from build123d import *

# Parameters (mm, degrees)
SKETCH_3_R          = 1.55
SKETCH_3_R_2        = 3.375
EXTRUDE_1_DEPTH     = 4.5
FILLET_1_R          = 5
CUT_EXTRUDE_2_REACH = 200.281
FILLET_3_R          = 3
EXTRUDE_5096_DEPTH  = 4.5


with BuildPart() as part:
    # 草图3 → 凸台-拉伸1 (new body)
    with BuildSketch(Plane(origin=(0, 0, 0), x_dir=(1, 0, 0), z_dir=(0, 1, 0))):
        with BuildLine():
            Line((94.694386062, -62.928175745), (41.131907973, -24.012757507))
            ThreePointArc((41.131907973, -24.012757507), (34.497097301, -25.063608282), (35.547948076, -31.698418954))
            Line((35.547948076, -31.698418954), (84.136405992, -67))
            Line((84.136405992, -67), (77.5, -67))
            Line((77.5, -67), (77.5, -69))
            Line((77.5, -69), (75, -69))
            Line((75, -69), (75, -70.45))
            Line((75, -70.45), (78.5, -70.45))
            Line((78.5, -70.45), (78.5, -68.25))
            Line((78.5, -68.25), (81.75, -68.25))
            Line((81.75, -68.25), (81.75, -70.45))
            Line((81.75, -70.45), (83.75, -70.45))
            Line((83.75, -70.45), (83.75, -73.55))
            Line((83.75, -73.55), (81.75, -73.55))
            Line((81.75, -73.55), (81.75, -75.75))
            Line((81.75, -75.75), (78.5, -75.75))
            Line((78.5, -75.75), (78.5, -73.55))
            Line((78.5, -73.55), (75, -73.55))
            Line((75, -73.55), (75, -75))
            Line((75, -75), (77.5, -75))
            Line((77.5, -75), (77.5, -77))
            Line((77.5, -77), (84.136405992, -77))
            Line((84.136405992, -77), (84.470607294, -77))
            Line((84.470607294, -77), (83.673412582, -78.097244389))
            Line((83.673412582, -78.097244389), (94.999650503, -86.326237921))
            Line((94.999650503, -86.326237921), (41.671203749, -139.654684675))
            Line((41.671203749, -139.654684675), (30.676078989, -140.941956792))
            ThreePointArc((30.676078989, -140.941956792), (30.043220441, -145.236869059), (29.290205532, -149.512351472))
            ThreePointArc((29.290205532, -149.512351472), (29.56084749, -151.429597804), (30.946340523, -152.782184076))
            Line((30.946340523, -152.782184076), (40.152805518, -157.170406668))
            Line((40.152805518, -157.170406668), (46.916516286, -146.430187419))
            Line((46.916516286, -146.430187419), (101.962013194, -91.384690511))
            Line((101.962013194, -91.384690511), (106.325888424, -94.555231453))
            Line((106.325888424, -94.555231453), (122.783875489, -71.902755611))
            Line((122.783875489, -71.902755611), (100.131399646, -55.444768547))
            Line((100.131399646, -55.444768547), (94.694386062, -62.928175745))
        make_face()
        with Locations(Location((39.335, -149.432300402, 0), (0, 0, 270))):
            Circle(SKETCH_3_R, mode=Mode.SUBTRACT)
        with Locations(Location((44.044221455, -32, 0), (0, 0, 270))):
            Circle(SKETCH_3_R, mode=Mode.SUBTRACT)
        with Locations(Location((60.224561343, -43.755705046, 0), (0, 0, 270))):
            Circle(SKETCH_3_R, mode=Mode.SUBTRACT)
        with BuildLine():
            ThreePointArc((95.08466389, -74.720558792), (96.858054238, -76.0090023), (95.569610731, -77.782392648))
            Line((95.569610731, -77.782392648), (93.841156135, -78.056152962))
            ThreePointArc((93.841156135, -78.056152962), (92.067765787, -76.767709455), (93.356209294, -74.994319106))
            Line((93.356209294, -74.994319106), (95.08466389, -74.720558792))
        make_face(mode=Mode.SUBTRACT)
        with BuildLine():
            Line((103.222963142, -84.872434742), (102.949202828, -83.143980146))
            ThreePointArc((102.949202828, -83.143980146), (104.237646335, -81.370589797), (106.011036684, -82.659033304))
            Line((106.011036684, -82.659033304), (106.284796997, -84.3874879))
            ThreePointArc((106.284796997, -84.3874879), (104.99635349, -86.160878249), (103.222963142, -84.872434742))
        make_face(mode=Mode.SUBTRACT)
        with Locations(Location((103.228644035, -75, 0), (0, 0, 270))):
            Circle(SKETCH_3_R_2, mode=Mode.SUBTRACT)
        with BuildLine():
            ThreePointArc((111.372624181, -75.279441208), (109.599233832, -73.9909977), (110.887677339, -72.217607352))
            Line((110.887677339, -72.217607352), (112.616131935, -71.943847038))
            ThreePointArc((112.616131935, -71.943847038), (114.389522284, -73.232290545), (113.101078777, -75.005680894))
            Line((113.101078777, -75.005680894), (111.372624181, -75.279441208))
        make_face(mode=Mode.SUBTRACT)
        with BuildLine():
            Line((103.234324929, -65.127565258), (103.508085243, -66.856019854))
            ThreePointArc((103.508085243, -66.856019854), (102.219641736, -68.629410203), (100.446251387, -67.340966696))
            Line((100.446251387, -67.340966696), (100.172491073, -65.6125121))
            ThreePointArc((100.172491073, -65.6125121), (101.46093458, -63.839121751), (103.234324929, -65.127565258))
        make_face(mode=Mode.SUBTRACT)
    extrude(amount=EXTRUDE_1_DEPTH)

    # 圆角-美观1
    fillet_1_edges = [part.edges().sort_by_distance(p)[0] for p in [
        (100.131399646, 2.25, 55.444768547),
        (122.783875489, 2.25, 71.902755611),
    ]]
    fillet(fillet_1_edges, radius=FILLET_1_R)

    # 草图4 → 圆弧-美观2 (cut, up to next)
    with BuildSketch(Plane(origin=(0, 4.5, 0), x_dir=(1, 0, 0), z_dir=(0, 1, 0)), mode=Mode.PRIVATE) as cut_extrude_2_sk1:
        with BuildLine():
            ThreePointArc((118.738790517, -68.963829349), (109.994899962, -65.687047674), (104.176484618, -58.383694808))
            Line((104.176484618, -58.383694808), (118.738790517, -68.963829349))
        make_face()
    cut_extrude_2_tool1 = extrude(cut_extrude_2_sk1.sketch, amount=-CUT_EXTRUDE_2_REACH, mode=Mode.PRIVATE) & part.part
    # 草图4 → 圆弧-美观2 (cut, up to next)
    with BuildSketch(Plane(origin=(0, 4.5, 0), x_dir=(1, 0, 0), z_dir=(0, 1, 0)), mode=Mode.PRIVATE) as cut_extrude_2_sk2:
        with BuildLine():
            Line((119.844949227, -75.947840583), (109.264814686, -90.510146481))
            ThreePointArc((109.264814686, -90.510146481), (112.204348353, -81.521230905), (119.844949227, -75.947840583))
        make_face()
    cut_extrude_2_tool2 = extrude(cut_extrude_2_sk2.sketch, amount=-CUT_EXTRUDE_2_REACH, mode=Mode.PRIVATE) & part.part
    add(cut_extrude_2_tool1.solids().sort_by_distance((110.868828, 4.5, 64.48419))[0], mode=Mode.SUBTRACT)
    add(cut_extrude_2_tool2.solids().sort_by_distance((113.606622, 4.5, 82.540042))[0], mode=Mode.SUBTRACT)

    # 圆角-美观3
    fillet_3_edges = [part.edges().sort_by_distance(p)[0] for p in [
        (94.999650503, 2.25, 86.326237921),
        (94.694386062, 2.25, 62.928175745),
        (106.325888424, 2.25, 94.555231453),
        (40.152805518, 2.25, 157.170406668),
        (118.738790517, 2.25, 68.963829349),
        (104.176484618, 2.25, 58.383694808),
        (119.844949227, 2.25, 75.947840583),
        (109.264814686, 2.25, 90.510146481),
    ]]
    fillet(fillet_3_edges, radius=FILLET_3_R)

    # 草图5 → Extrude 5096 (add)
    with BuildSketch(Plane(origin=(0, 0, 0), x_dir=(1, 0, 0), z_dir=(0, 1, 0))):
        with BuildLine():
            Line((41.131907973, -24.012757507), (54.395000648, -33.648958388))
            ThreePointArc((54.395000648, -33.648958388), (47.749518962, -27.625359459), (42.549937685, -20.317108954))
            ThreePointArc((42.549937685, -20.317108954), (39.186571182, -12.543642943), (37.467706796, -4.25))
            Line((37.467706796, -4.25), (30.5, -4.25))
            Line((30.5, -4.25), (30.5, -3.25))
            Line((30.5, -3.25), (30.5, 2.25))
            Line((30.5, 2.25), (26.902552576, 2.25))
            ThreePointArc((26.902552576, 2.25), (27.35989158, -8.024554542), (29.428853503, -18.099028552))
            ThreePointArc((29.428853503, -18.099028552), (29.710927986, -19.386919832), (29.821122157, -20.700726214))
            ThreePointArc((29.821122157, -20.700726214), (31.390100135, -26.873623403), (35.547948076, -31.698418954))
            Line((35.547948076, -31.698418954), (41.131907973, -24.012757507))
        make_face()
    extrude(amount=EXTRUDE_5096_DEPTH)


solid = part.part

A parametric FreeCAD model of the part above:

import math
import FreeCAD as App
import Part
import Sketcher
Q = App.Units.Quantity


def edges_at(feature, points):
    """Names of the edges that pass closest to the given points."""
    edges = feature.Shape.Edges
    near = lambda p: min(range(len(edges)), key=lambda i: edges[i].distToShape(Part.Vertex(*p))[0])
    return sorted({f"Edge{near(p) + 1}" for p in points})

doc = App.newDocument("Part")
body = doc.addObject("PartDesign::Body", "Body")

# Sketch on XZ plane
sketch1 = body.newObject("Sketcher::SketchObject", "Sketch")
sketch1.AttachmentSupport = (doc.getObject("XZ_Plane"), [""])
sketch1.MapMode = "FlatFace"
sketch1.addGeometry([
    Part.LineSegment(App.Vector(94.7, 62.9, 0), App.Vector(41.1, 24, 0)),  # 0
    Part.ArcOfCircle(Part.Circle(App.Vector(38.3, 27.9, 0), App.Vector(0, 0, 1), 4.8), math.radians(126), math.radians(306)),  # 1
    Part.LineSegment(App.Vector(35.5, 31.7, 0), App.Vector(84.1, 67, 0)),  # 2
    Part.LineSegment(App.Vector(84.1, 67, 0), App.Vector(77.5, 67, 0)),  # 3
    Part.LineSegment(App.Vector(77.5, 67, 0), App.Vector(77.5, 69, 0)),  # 4
    Part.LineSegment(App.Vector(77.5, 69, 0), App.Vector(75, 69, 0)),  # 5
    Part.LineSegment(App.Vector(75, 69, 0), App.Vector(75, 70.5, 0)),  # 6
    Part.LineSegment(App.Vector(75, 70.5, 0), App.Vector(78.5, 70.5, 0)),  # 7
    Part.LineSegment(App.Vector(78.5, 70.5, 0), App.Vector(78.5, 68.2, 0)),  # 8
    Part.LineSegment(App.Vector(78.5, 68.2, 0), App.Vector(81.8, 68.2, 0)),  # 9
    Part.LineSegment(App.Vector(81.8, 68.2, 0), App.Vector(81.8, 70.5, 0)),  # 10
    Part.LineSegment(App.Vector(81.8, 70.5, 0), App.Vector(83.8, 70.5, 0)),  # 11
    Part.LineSegment(App.Vector(83.8, 70.5, 0), App.Vector(83.8, 73.5, 0)),  # 12
    Part.LineSegment(App.Vector(83.8, 73.5, 0), App.Vector(81.8, 73.5, 0)),  # 13
    Part.LineSegment(App.Vector(81.8, 73.5, 0), App.Vector(81.8, 75.8, 0)),  # 14
    Part.LineSegment(App.Vector(81.8, 75.8, 0), App.Vector(78.5, 75.8, 0)),  # 15
    Part.LineSegment(App.Vector(78.5, 75.8, 0), App.Vector(78.5, 73.5, 0)),  # 16
    Part.LineSegment(App.Vector(78.5, 73.5, 0), App.Vector(75, 73.5, 0)),  # 17
    Part.LineSegment(App.Vector(75, 73.5, 0), App.Vector(75, 75, 0)),  # 18
    Part.LineSegment(App.Vector(75, 75, 0), App.Vector(77.5, 75, 0)),  # 19
    Part.LineSegment(App.Vector(77.5, 75, 0), App.Vector(77.5, 77, 0)),  # 20
    Part.LineSegment(App.Vector(77.5, 77, 0), App.Vector(84.5, 77, 0)),  # 21
    Part.LineSegment(App.Vector(84.5, 77, 0), App.Vector(83.7, 78.1, 0)),  # 22
    Part.LineSegment(App.Vector(83.7, 78.1, 0), App.Vector(95, 86.3, 0)),  # 23
    Part.LineSegment(App.Vector(95, 86.3, 0), App.Vector(41.7, 139.7, 0)),  # 24
    Part.LineSegment(App.Vector(41.7, 139.7, 0), App.Vector(30.7, 140.9, 0)),  # 25
    Part.ArcOfCircle(Part.Circle(App.Vector(-122.8, 120.5, 0), App.Vector(0, 0, 1), 154.8), math.radians(7.58), math.radians(10.79)),  # 26
    Part.ArcOfCircle(Part.Circle(App.Vector(32.2, 150.1, 0), App.Vector(0, 0, 1), 3), math.radians(115), math.radians(191)),  # 27
    Part.LineSegment(App.Vector(30.9, 152.8, 0), App.Vector(40.2, 157.2, 0)),  # 28
    Part.LineSegment(App.Vector(40.2, 157.2, 0), App.Vector(46.9, 146.4, 0)),  # 29
    Part.LineSegment(App.Vector(46.9, 146.4, 0), App.Vector(102, 91.4, 0)),  # 30
    Part.LineSegment(App.Vector(102, 91.4, 0), App.Vector(106.3, 94.6, 0)),  # 31
    Part.LineSegment(App.Vector(106.3, 94.6, 0), App.Vector(122.8, 71.9, 0)),  # 32
    Part.LineSegment(App.Vector(122.8, 71.9, 0), App.Vector(100.1, 55.4, 0)),  # 33
    Part.LineSegment(App.Vector(100.1, 55.4, 0), App.Vector(94.7, 62.9, 0)),  # 34
    Part.Circle(App.Vector(39.3, 149.4, 0), App.Vector(0, 0, 1), 1.6),  # 35
    Part.Circle(App.Vector(44, 32, 0), App.Vector(0, 0, 1), 1.6),  # 36
    Part.Circle(App.Vector(60.2, 43.8, 0), App.Vector(0, 0, 1), 1.6),  # 37
    Part.LineSegment(App.Vector(93.4, 75, 0), App.Vector(95.1, 74.7, 0)),  # 38
    Part.ArcOfCircle(Part.Circle(App.Vector(95.3, 76.3, 0), App.Vector(0, 0, 1), 1.6), math.radians(-99), math.radians(81)),  # 39
    Part.LineSegment(App.Vector(95.6, 77.8, 0), App.Vector(93.8, 78.1, 0)),  # 40
    Part.ArcOfCircle(Part.Circle(App.Vector(93.6, 76.5, 0), App.Vector(0, 0, 1), 1.6), math.radians(81), math.radians(261)),  # 41
    Part.ArcOfCircle(Part.Circle(App.Vector(104.8, 84.6, 0), App.Vector(0, 0, 1), 1.6), math.radians(-9), math.radians(171)),  # 42
    Part.LineSegment(App.Vector(103.2, 84.9, 0), App.Vector(102.9, 83.1, 0)),  # 43
    Part.ArcOfCircle(Part.Circle(App.Vector(104.5, 82.9, 0), App.Vector(0, 0, 1), 1.6), math.radians(171), math.radians(351)),  # 44
    Part.LineSegment(App.Vector(106, 82.7, 0), App.Vector(106.3, 84.4, 0)),  # 45
    Part.Circle(App.Vector(103.2, 75, 0), App.Vector(0, 0, 1), 3.4),  # 46
    Part.ArcOfCircle(Part.Circle(App.Vector(101.7, 65.4, 0), App.Vector(0, 0, 1), 1.6), math.radians(171), math.radians(351)),  # 47
    Part.LineSegment(App.Vector(103.2, 65.1, 0), App.Vector(103.5, 66.9, 0)),  # 48
    Part.ArcOfCircle(Part.Circle(App.Vector(102, 67.1, 0), App.Vector(0, 0, 1), 1.6), math.radians(-9), math.radians(171)),  # 49
    Part.LineSegment(App.Vector(100.4, 67.3, 0), App.Vector(100.2, 65.6, 0)),  # 50
    Part.LineSegment(App.Vector(113.1, 75, 0), App.Vector(111.4, 75.3, 0)),  # 51
    Part.ArcOfCircle(Part.Circle(App.Vector(111.1, 73.7, 0), App.Vector(0, 0, 1), 1.6), math.radians(81), math.radians(261)),  # 52
    Part.LineSegment(App.Vector(110.9, 72.2, 0), App.Vector(112.6, 71.9, 0)),  # 53
    Part.ArcOfCircle(Part.Circle(App.Vector(112.9, 73.5, 0), App.Vector(0, 0, 1), 1.6), math.radians(-99), math.radians(81)),  # 54
], False)
sketch1.addConstraint([
    Sketcher.Constraint("Tangent", 0, 2, 1, 2),
    Sketcher.Constraint("Tangent", 1, 1, 2, 1),
    Sketcher.Constraint("Coincident", 2, 2, 3, 1),
    Sketcher.Constraint("Coincident", 3, 2, 4, 1),
    Sketcher.Constraint("Coincident", 4, 2, 5, 1),
    Sketcher.Constraint("Coincident", 5, 2, 6, 1),
    Sketcher.Constraint("Coincident", 6, 2, 7, 1),
    Sketcher.Constraint("Coincident", 7, 2, 8, 1),
    Sketcher.Constraint("Coincident", 8, 2, 9, 1),
    Sketcher.Constraint("Coincident", 9, 2, 10, 1),
    Sketcher.Constraint("Coincident", 10, 2, 11, 1),
    Sketcher.Constraint("Coincident", 11, 2, 12, 1),
    Sketcher.Constraint("Coincident", 12, 2, 13, 1),
    Sketcher.Constraint("Coincident", 13, 2, 14, 1),
    Sketcher.Constraint("Coincident", 14, 2, 15, 1),
    Sketcher.Constraint("Coincident", 15, 2, 16, 1),
    Sketcher.Constraint("Coincident", 16, 2, 17, 1),
    Sketcher.Constraint("Coincident", 17, 2, 18, 1),
    Sketcher.Constraint("Coincident", 18, 2, 19, 1),
    Sketcher.Constraint("Coincident", 19, 2, 20, 1),
    Sketcher.Constraint("Coincident", 20, 2, 21, 1),
    Sketcher.Constraint("Coincident", 21, 2, 22, 1),
    Sketcher.Constraint("Coincident", 22, 2, 23, 1),
    Sketcher.Constraint("Coincident", 23, 2, 24, 1),
    Sketcher.Constraint("Coincident", 24, 2, 25, 1),
    Sketcher.Constraint("Coincident", 25, 2, 26, 1),
    Sketcher.Constraint("Tangent", 26, 2, 27, 2),
    Sketcher.Constraint("Tangent", 27, 1, 28, 1),
    Sketcher.Constraint("Coincident", 28, 2, 29, 1),
    Sketcher.Constraint("Coincident", 29, 2, 30, 1),
    Sketcher.Constraint("Coincident", 30, 2, 31, 1),
    Sketcher.Constraint("Coincident", 31, 2, 32, 1),
    Sketcher.Constraint("Coincident", 32, 2, 33, 1),
    Sketcher.Constraint("Coincident", 33, 2, 34, 1),
    Sketcher.Constraint("Coincident", 34, 2, 0, 1),
    Sketcher.Constraint("Tangent", 38, 2, 39, 1),
    Sketcher.Constraint("Tangent", 39, 2, 40, 1),
    Sketcher.Constraint("Tangent", 40, 2, 41, 1),
    Sketcher.Constraint("Tangent", 41, 2, 38, 1),
    Sketcher.Constraint("Tangent", 42, 2, 43, 1),
    Sketcher.Constraint("Tangent", 43, 2, 44, 1),
    Sketcher.Constraint("Tangent", 44, 2, 45, 1),
    Sketcher.Constraint("Tangent", 45, 2, 42, 1),
    Sketcher.Constraint("Tangent", 47, 2, 48, 1),
    Sketcher.Constraint("Tangent", 48, 2, 49, 1),
    Sketcher.Constraint("Tangent", 49, 2, 50, 1),
    Sketcher.Constraint("Tangent", 50, 2, 47, 1),
    Sketcher.Constraint("Tangent", 51, 2, 52, 1),
    Sketcher.Constraint("Tangent", 52, 2, 53, 1),
    Sketcher.Constraint("Tangent", 53, 2, 54, 1),
    Sketcher.Constraint("Tangent", 54, 2, 51, 1),
    Sketcher.Constraint("Horizontal", 3),
    Sketcher.Constraint("Vertical", 4),
    Sketcher.Constraint("Horizontal", 5),
    Sketcher.Constraint("Vertical", 6),
    Sketcher.Constraint("Horizontal", 7),
    Sketcher.Constraint("Vertical", 8),
    Sketcher.Constraint("Horizontal", 9),
    Sketcher.Constraint("Vertical", 10),
    Sketcher.Constraint("Horizontal", 11),
    Sketcher.Constraint("Vertical", 12),
    Sketcher.Constraint("Horizontal", 13),
    Sketcher.Constraint("Vertical", 14),
    Sketcher.Constraint("Horizontal", 15),
    Sketcher.Constraint("Vertical", 16),
    Sketcher.Constraint("Horizontal", 17),
    Sketcher.Constraint("Vertical", 18),
    Sketcher.Constraint("Horizontal", 19),
    Sketcher.Constraint("Vertical", 20),
    Sketcher.Constraint("Horizontal", 21),
    Sketcher.Constraint("Equal", 35, 36),
    Sketcher.Constraint("Equal", 36, 37),
    Sketcher.Constraint("Equal", 37, 39),
    Sketcher.Constraint("Equal", 39, 41),
    Sketcher.Constraint("Equal", 41, 42),
    Sketcher.Constraint("Equal", 42, 44),
    Sketcher.Constraint("Equal", 44, 47),
    Sketcher.Constraint("Equal", 47, 49),
    Sketcher.Constraint("Equal", 49, 52),
    Sketcher.Constraint("Equal", 52, 54),
    Sketcher.Constraint("Parallel", 0, 2),
    Sketcher.Constraint("Perpendicular", 2, 22),
    Sketcher.Constraint("Perpendicular", 22, 23),
    Sketcher.Constraint("Parallel", 24, 30),
    Sketcher.Constraint("Parallel", 23, 31),
    Sketcher.Constraint("Perpendicular", 31, 32),
    Sketcher.Constraint("Perpendicular", 32, 33),
    Sketcher.Constraint("Perpendicular", 33, 34),
    Sketcher.Constraint("Perpendicular", 40, 43),
    Sketcher.Constraint("Parallel", 45, 48),
    Sketcher.Constraint("Perpendicular", 50, 51),
    Sketcher.Constraint("Horizontal", 7, 2, 10, 2),
    Sketcher.Constraint("Horizontal", 13, 2, 16, 2),
    Sketcher.Constraint("Horizontal", 46, 3, 18, 2),
    Sketcher.Constraint("Vertical", 10, 2, 13, 2),
    Sketcher.Constraint("Vertical", 8, 2, 15, 2),
    Sketcher.Constraint("Vertical", 6, 2, 17, 2),
    Sketcher.Constraint("Vertical", 4, 2, 19, 2),
    Sketcher.Constraint("Equal", 13, 4),
    Sketcher.Constraint("Equal", 10, 14),
    Sketcher.Constraint("Equal", 6, 18),
    Sketcher.Constraint("Equal", 4, 20),
    Sketcher.Constraint("Equal", 32, 33),
    Sketcher.Constraint("Equal", 40, 43),
    Sketcher.Constraint("Equal", 45, 48),
    Sketcher.Constraint("Equal", 50, 51),
    Sketcher.Constraint("Radius", 27, 3.0),
    Sketcher.Constraint("Diameter", 35, 3.1),
    Sketcher.Constraint("Diameter", 46, 6.75),
    Sketcher.Constraint("DistanceX", 11, 1, 11, 2, 2.0),
    Sketcher.Constraint("Angle", 0, Q("-144 deg")),
    Sketcher.Constraint("Angle", 24, Q("135 deg")),
    Sketcher.Constraint("Angle", 38, Q("-9 deg")),
    Sketcher.Constraint("Radius", 1, 4.75),
    Sketcher.Constraint("Distance", 23, 14.0),
    Sketcher.Constraint("Distance", 32, 28.0),
    Sketcher.Constraint("DistanceX", 5, 2, 5, 1, 2.5),
    Sketcher.Constraint("DistanceX", 7, 1, 7, 2, 3.5),
    Sketcher.Constraint("DistanceY", 8, 2, 8, 1, 2.2),
    Sketcher.Constraint("DistanceY", 12, 1, 12, 2, 3.1),
    Sketcher.Constraint("DistanceY", -1, 1, 36, 3, 32.0),
    Sketcher.Constraint("DistanceY", -1, 1, 46, 3, 75.0),
    Sketcher.Constraint("DistanceY", -1, 1, 2, 2, 67.0),
    Sketcher.Constraint("DistanceX", -1, 1, 5, 2, 75.0),
    Sketcher.Constraint("DistanceX", 9, 1, 9, 2, 3.25),
    Sketcher.Constraint("Distance", 34, 9.25),
    Sketcher.Constraint("Distance", 38, 1.75),
    Sketcher.Constraint("DistanceX", -1, 1, 35, 3, 39.335),
    Sketcher.Constraint("Radius", 26, 154.840774),
    Sketcher.Constraint("Distance", 28, 10.198799),
    Sketcher.Constraint("DistanceY", -1, 1, 35, 3, 149.4323),
    Sketcher.Constraint("DistanceX", -1, 1, 33, 2, 100.1314),
    Sketcher.Constraint("Distance", 22, 1.356269),
    Sketcher.Constraint("Distance", 29, 12.692521),
    Sketcher.Constraint("Distance", 30, 77.846088),
    Sketcher.Constraint("DistanceX", 3, 2, 3, 1, 6.636406),
    Sketcher.Constraint("DistanceX", 21, 1, 21, 2, 6.970607),
    Sketcher.Constraint("DistanceX", -1, 1, 1, 3, 38.339928),
    Sketcher.Constraint("DistanceX", 26, 3, -1, 1, 122.811988),
    Sketcher.Constraint("DistanceY", -1, 1, 27, 3, 150.074081),
    Sketcher.Constraint("DistanceX", -1, 1, 36, 3, 44.044221),
    Sketcher.Constraint("DistanceX", -1, 1, 37, 3, 60.224561),
    Sketcher.Constraint("DistanceX", -1, 1, 42, 3, 104.75388),
    Sketcher.Constraint("DistanceY", -1, 1, 42, 3, 84.629961),
    Sketcher.Constraint("DistanceX", -1, 1, 47, 3, 101.703408),
    Sketcher.Constraint("DistanceY", -1, 1, 47, 3, 65.370039),
    Sketcher.Constraint("DistanceX", -1, 1, 52, 3, 111.130151),
    Sketcher.Constraint("DistanceX", -1, 1, 25, 2, 30.676079),
    Sketcher.Constraint("DistanceX", -1, 1, 27, 1, 30.946341),
    Sketcher.Constraint("DistanceY", -1, 1, 30, 2, 91.384691),
    Sketcher.Constraint("DistanceY", -1, 1, 38, 2, 74.720559),
    Sketcher.Constraint("DistanceX", -1, 1, 39, 2, 95.569611),
    Sketcher.Constraint("DistanceY", -1, 1, 51, 2, 75.279441),
    Sketcher.Constraint("Distance", 24, 75.417813),
    Sketcher.Constraint("DistanceY", -1, 1, 37, 3, 43.755705),
    Sketcher.Constraint("DistanceX", -1, 1, 46, 3, 103.228644),
])
pad1 = body.newObject("PartDesign::Pad", "Pad")
pad1.Profile = sketch1
pad1.Length = 4.5
pad1.Reversed = True
doc.recompute()

fillet = body.newObject("PartDesign::Fillet", "Fillet")
fillet.Base = (pad1, edges_at(pad1, [(100.131, 2.25, 55.445), (122.784, 2.25, 71.903)]))
fillet.Radius = 5

# Sketch on XZ plane
sketch2 = body.newObject("Sketcher::SketchObject", "Sketch001")
sketch2.AttachmentSupport = (doc.getObject("XZ_Plane"), [""])
sketch2.MapMode = "FlatFace"
sketch2.AttachmentOffset = App.Placement(App.Vector(0, 0, -4.5), App.Rotation())
sketch2.addGeometry([
    Part.ArcOfCircle(Part.Circle(App.Vector(120, 52, 0), App.Vector(0, 0, 1), 18), math.radians(95), math.radians(157)),
    Part.LineSegment(App.Vector(119, 69, 0), App.Vector(104, 58, 0)),
], False)
sketch2.addConstraint([
    Sketcher.Constraint("Coincident", 0, 1, 1, 1),
    Sketcher.Constraint("Coincident", 1, 2, 0, 2),
    Sketcher.Constraint("Angle", 1, Q("-144 deg")),
    Sketcher.Constraint("Distance", 1, 18.0),
    Sketcher.Constraint("Radius", 0, 17.518765),
    Sketcher.Constraint("DistanceX", -1, 1, 0, 3, 120.292172),
    Sketcher.Constraint("DistanceY", -1, 1, 0, 3, 51.514069),
])
pocket1 = body.newObject("PartDesign::Pocket", "Pocket")
pocket1.Profile = sketch2
pocket1.Type = "UpToFirst"
pocket1.Reversed = True

# Sketch on XZ plane
sketch3 = body.newObject("Sketcher::SketchObject", "Sketch002")
sketch3.AttachmentSupport = (doc.getObject("XZ_Plane"), [""])
sketch3.MapMode = "FlatFace"
sketch3.AttachmentOffset = App.Placement(App.Vector(0, 0, -4.5), App.Rotation())
sketch3.addGeometry([
    Part.LineSegment(App.Vector(109, 91, 0), App.Vector(120, 76, 0)),
    Part.ArcOfCircle(Part.Circle(App.Vector(125, 91, 0), App.Vector(0, 0, 1), 15), math.radians(-180), math.radians(-108)),
], False)
sketch3.addConstraint([
    Sketcher.Constraint("Coincident", 0, 1, 1, 1),
    Sketcher.Constraint("Coincident", 1, 2, 0, 2),
    Sketcher.Constraint("Angle", 0, Q("-54 deg")),
    Sketcher.Constraint("Distance", 0, 18.0),
    Sketcher.Constraint("Radius", 1, 15.392178),
    Sketcher.Constraint("DistanceX", -1, 1, 1, 3, 124.656882),
    Sketcher.Constraint("DistanceY", -1, 1, 1, 2, 75.947841),
])
pocket2 = body.newObject("PartDesign::Pocket", "Pocket001")
pocket2.Profile = sketch3
pocket2.Type = "UpToFirst"
pocket2.Reversed = True
doc.recompute()

fillet2 = body.newObject("PartDesign::Fillet", "Fillet001")
fillet2.Base = (pocket2, edges_at(pocket2, [
    (95, 2.25, 86.326),
    (94.694, 2.25, 62.928),
    (106.326, 2.25, 94.555),
    (40.153, 2.25, 157.17),
    (118.739, 2.25, 68.964),
    (104.176, 2.25, 58.384),
    (119.845, 2.25, 75.948),
    (109.265, 2.25, 90.51),
]))
fillet2.Radius = 3

# Sketch on XZ plane
sketch4 = body.newObject("Sketcher::SketchObject", "Sketch003")
sketch4.AttachmentSupport = (doc.getObject("XZ_Plane"), [""])
sketch4.MapMode = "FlatFace"
sketch4.addGeometry([
    Part.LineSegment(App.Vector(41.1, 24, 0), App.Vector(54.4, 33.6, 0)),  # 0
    Part.ArcOfCircle(Part.Circle(App.Vector(78.8, 0, 0), App.Vector(0, 0, 1), 41.6), math.radians(126), math.radians(151)),  # 1
    Part.ArcOfCircle(Part.Circle(App.Vector(78.8, 0, 0), App.Vector(0, 0, 1), 41.6), math.radians(151), math.radians(174)),  # 2
    Part.LineSegment(App.Vector(37.5, 4.2, 0), App.Vector(30.5, 4.2, 0)),  # 3
    Part.LineSegment(App.Vector(30.5, 4.2, 0), App.Vector(30.5, -2.2, 0)),  # 4
    Part.LineSegment(App.Vector(30.5, -2.2, 0), App.Vector(26.9, -2.2, 0)),  # 5
    Part.ArcOfCircle(Part.Circle(App.Vector(92, 0, 0), App.Vector(0, 0, 1), 65.1), math.radians(163.87), math.radians(181.98)),  # 6
    Part.ArcOfCircle(Part.Circle(App.Vector(19.8, 20.9, 0), App.Vector(0, 0, 1), 10), math.radians(-16.13), math.radians(-1.01)),  # 7
    Part.ArcOfCircle(Part.Circle(App.Vector(43.7, 20.5, 0), App.Vector(0, 0, 1), 13.9), math.radians(126), math.radians(179)),  # 8
    Part.LineSegment(App.Vector(35.5, 31.7, 0), App.Vector(41.1, 24, 0)),  # 9
], False)
sketch4.addConstraint([
    Sketcher.Constraint("Tangent", 0, 2, 1, 1),
    Sketcher.Constraint("Tangent", 1, 2, 2, 1),
    Sketcher.Constraint("Coincident", 2, 2, 3, 1),
    Sketcher.Constraint("Coincident", 3, 2, 4, 1),
    Sketcher.Constraint("Coincident", 4, 2, 5, 1),
    Sketcher.Constraint("Coincident", 5, 2, 6, 2),
    Sketcher.Constraint("Tangent", 6, 1, 7, 1),
    Sketcher.Constraint("Tangent", 7, 2, 8, 2),
    Sketcher.Constraint("Coincident", 8, 1, 9, 1),
    Sketcher.Constraint("Coincident", 9, 2, 0, 1),
    Sketcher.Constraint("Horizontal", 3),
    Sketcher.Constraint("Vertical", 4),
    Sketcher.Constraint("Horizontal", 5),
    Sketcher.Constraint("Equal", 1, 2),
    Sketcher.Constraint("PointOnObject", 1, 3, -1),
    Sketcher.Constraint("PointOnObject", 6, 3, -1),
    Sketcher.Constraint("Perpendicular", 0, 9),
    Sketcher.Constraint("Radius", 7, 10.0),
    Sketcher.Constraint("Angle", 0, Q("36 deg")),
    Sketcher.Constraint("DistanceY", 4, 2, 4, 1, 6.5),
    Sketcher.Constraint("Distance", 9, 9.5),
    Sketcher.Constraint("DistanceX", -1, 1, 3, 2, 30.5),
    Sketcher.Constraint("Radius", 1, 41.5924),
    Sketcher.Constraint("DistanceY", -1, 1, 2, 2, 4.25),
    Sketcher.Constraint("Radius", 8, 13.898108),
    Sketcher.Constraint("DistanceX", -1, 1, 0, 2, 54.395001),
    Sketcher.Constraint("Radius", 6, 65.132967),
    Sketcher.Constraint("DistanceY", 1, 2, 7, 3, 0.560701),
    Sketcher.Constraint("DistanceX", 5, 2, 5, 1, 3.597447),
    Sketcher.Constraint("DistanceX", -1, 1, 7, 3, 19.82269),
    Sketcher.Constraint("DistanceX", -1, 1, 8, 1, 35.547948),
])
pad2 = body.newObject("PartDesign::Pad", "Pad001")
pad2.Profile = sketch4
pad2.Length = 4.5
pad2.Reversed = True

doc.recompute()
